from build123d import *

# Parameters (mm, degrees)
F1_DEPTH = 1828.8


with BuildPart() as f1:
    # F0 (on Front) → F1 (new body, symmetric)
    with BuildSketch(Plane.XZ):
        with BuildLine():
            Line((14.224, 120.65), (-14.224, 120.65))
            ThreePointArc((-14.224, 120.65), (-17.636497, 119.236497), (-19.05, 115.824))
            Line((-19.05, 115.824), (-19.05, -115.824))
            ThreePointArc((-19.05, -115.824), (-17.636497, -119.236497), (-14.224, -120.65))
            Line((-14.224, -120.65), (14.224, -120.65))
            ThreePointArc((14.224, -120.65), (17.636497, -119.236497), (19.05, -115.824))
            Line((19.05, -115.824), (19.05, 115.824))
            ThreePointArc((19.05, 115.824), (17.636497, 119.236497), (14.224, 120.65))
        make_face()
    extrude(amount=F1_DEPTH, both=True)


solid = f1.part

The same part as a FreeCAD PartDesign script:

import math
import FreeCAD as App
import Part
import Sketcher

V = App.Vector
Q = App.Units.Quantity

doc = App.newDocument("Part")
body = doc.addObject("PartDesign::Body", "Body")

sketch1 = doc.addObject("Sketcher::SketchObject", "Sketch")
body.addObject(sketch1)
sketch1.AttachmentSupport = (doc.XZ_Plane, [""])
sketch1.MapMode = "FlatFace"
sketch1.addGeometry(Part.LineSegment(V(14.2, 120.7, 0), V(-14.2, 120.7, 0)), False)
sketch1.addGeometry(Part.ArcOfCircle(Part.Circle(V(-14.2, 115.8, 0), V(0, 0, 1), 4.8), math.radians(90), math.radians(180)), False)
sketch1.addGeometry(Part.LineSegment(V(-19.1, 115.8, 0), V(-19.1, -115.8, 0)), False)
sketch1.addGeometry(Part.ArcOfCircle(Part.Circle(V(-14.2, -115.8, 0), V(0, 0, 1), 4.8), math.radians(-180), math.radians(-90)), False)
sketch1.addGeometry(Part.LineSegment(V(-14.2, -120.7, 0), V(14.2, -120.7, 0)), False)
sketch1.addGeometry(Part.ArcOfCircle(Part.Circle(V(14.2, -115.8, 0), V(0, 0, 1), 4.8), math.radians(-90), math.radians(0)), False)
sketch1.addGeometry(Part.LineSegment(V(19.1, -115.8, 0), V(19.1, 115.8, 0)), False)
sketch1.addGeometry(Part.ArcOfCircle(Part.Circle(V(14.2, 115.8, 0), V(0, 0, 1), 4.8), math.radians(0), math.radians(90)), False)
sketch1.addConstraint(Sketcher.Constraint("Tangent", 0, 2, 1, 1))
sketch1.addConstraint(Sketcher.Constraint("Tangent", 1, 2, 2, 1))
sketch1.addConstraint(Sketcher.Constraint("Tangent", 2, 2, 3, 1))
sketch1.addConstraint(Sketcher.Constraint("Tangent", 3, 2, 4, 1))
sketch1.addConstraint(Sketcher.Constraint("Tangent", 4, 2, 5, 1))
sketch1.addConstraint(Sketcher.Constraint("Tangent", 5, 2, 6, 1))
sketch1.addConstraint(Sketcher.Constraint("Tangent", 6, 2, 7, 1))
sketch1.addConstraint(Sketcher.Constraint("Tangent", 7, 2, 0, 1))
sketch1.addConstraint(Sketcher.Constraint("Horizontal", 0))
sketch1.addConstraint(Sketcher.Constraint("Vertical", 2))
sketch1.addConstraint(Sketcher.Constraint("Horizontal", 4))
sketch1.addConstraint(Sketcher.Constraint("Vertical", 6))
sketch1.addConstraint(Sketcher.Constraint("Equal", 1, 3))
sketch1.addConstraint(Sketcher.Constraint("Equal", 3, 5))
sketch1.addConstraint(Sketcher.Constraint("Equal", 5, 7))
sketch1.addConstraint(Sketcher.Constraint("Symmetric", 1, 3, 5, 3, -1, 1))
sketch1.addConstraint(Sketcher.Constraint("Radius", 1, Q("0.19 in")))
sketch1.addConstraint(Sketcher.Constraint("DistanceX", 0, 2, 0, 1, Q("1.12 in")))
sketch1.addConstraint(Sketcher.Constraint("DistanceY", 2, 2, 2, 1, Q("9.12 in")))
pad1 = doc.addObject("PartDesign::Pad", "Pad")
body.addObject(pad1)
pad1.Profile = sketch1
pad1.Length = Q("144 in")
pad1.Midplane = True

doc.recompute()
